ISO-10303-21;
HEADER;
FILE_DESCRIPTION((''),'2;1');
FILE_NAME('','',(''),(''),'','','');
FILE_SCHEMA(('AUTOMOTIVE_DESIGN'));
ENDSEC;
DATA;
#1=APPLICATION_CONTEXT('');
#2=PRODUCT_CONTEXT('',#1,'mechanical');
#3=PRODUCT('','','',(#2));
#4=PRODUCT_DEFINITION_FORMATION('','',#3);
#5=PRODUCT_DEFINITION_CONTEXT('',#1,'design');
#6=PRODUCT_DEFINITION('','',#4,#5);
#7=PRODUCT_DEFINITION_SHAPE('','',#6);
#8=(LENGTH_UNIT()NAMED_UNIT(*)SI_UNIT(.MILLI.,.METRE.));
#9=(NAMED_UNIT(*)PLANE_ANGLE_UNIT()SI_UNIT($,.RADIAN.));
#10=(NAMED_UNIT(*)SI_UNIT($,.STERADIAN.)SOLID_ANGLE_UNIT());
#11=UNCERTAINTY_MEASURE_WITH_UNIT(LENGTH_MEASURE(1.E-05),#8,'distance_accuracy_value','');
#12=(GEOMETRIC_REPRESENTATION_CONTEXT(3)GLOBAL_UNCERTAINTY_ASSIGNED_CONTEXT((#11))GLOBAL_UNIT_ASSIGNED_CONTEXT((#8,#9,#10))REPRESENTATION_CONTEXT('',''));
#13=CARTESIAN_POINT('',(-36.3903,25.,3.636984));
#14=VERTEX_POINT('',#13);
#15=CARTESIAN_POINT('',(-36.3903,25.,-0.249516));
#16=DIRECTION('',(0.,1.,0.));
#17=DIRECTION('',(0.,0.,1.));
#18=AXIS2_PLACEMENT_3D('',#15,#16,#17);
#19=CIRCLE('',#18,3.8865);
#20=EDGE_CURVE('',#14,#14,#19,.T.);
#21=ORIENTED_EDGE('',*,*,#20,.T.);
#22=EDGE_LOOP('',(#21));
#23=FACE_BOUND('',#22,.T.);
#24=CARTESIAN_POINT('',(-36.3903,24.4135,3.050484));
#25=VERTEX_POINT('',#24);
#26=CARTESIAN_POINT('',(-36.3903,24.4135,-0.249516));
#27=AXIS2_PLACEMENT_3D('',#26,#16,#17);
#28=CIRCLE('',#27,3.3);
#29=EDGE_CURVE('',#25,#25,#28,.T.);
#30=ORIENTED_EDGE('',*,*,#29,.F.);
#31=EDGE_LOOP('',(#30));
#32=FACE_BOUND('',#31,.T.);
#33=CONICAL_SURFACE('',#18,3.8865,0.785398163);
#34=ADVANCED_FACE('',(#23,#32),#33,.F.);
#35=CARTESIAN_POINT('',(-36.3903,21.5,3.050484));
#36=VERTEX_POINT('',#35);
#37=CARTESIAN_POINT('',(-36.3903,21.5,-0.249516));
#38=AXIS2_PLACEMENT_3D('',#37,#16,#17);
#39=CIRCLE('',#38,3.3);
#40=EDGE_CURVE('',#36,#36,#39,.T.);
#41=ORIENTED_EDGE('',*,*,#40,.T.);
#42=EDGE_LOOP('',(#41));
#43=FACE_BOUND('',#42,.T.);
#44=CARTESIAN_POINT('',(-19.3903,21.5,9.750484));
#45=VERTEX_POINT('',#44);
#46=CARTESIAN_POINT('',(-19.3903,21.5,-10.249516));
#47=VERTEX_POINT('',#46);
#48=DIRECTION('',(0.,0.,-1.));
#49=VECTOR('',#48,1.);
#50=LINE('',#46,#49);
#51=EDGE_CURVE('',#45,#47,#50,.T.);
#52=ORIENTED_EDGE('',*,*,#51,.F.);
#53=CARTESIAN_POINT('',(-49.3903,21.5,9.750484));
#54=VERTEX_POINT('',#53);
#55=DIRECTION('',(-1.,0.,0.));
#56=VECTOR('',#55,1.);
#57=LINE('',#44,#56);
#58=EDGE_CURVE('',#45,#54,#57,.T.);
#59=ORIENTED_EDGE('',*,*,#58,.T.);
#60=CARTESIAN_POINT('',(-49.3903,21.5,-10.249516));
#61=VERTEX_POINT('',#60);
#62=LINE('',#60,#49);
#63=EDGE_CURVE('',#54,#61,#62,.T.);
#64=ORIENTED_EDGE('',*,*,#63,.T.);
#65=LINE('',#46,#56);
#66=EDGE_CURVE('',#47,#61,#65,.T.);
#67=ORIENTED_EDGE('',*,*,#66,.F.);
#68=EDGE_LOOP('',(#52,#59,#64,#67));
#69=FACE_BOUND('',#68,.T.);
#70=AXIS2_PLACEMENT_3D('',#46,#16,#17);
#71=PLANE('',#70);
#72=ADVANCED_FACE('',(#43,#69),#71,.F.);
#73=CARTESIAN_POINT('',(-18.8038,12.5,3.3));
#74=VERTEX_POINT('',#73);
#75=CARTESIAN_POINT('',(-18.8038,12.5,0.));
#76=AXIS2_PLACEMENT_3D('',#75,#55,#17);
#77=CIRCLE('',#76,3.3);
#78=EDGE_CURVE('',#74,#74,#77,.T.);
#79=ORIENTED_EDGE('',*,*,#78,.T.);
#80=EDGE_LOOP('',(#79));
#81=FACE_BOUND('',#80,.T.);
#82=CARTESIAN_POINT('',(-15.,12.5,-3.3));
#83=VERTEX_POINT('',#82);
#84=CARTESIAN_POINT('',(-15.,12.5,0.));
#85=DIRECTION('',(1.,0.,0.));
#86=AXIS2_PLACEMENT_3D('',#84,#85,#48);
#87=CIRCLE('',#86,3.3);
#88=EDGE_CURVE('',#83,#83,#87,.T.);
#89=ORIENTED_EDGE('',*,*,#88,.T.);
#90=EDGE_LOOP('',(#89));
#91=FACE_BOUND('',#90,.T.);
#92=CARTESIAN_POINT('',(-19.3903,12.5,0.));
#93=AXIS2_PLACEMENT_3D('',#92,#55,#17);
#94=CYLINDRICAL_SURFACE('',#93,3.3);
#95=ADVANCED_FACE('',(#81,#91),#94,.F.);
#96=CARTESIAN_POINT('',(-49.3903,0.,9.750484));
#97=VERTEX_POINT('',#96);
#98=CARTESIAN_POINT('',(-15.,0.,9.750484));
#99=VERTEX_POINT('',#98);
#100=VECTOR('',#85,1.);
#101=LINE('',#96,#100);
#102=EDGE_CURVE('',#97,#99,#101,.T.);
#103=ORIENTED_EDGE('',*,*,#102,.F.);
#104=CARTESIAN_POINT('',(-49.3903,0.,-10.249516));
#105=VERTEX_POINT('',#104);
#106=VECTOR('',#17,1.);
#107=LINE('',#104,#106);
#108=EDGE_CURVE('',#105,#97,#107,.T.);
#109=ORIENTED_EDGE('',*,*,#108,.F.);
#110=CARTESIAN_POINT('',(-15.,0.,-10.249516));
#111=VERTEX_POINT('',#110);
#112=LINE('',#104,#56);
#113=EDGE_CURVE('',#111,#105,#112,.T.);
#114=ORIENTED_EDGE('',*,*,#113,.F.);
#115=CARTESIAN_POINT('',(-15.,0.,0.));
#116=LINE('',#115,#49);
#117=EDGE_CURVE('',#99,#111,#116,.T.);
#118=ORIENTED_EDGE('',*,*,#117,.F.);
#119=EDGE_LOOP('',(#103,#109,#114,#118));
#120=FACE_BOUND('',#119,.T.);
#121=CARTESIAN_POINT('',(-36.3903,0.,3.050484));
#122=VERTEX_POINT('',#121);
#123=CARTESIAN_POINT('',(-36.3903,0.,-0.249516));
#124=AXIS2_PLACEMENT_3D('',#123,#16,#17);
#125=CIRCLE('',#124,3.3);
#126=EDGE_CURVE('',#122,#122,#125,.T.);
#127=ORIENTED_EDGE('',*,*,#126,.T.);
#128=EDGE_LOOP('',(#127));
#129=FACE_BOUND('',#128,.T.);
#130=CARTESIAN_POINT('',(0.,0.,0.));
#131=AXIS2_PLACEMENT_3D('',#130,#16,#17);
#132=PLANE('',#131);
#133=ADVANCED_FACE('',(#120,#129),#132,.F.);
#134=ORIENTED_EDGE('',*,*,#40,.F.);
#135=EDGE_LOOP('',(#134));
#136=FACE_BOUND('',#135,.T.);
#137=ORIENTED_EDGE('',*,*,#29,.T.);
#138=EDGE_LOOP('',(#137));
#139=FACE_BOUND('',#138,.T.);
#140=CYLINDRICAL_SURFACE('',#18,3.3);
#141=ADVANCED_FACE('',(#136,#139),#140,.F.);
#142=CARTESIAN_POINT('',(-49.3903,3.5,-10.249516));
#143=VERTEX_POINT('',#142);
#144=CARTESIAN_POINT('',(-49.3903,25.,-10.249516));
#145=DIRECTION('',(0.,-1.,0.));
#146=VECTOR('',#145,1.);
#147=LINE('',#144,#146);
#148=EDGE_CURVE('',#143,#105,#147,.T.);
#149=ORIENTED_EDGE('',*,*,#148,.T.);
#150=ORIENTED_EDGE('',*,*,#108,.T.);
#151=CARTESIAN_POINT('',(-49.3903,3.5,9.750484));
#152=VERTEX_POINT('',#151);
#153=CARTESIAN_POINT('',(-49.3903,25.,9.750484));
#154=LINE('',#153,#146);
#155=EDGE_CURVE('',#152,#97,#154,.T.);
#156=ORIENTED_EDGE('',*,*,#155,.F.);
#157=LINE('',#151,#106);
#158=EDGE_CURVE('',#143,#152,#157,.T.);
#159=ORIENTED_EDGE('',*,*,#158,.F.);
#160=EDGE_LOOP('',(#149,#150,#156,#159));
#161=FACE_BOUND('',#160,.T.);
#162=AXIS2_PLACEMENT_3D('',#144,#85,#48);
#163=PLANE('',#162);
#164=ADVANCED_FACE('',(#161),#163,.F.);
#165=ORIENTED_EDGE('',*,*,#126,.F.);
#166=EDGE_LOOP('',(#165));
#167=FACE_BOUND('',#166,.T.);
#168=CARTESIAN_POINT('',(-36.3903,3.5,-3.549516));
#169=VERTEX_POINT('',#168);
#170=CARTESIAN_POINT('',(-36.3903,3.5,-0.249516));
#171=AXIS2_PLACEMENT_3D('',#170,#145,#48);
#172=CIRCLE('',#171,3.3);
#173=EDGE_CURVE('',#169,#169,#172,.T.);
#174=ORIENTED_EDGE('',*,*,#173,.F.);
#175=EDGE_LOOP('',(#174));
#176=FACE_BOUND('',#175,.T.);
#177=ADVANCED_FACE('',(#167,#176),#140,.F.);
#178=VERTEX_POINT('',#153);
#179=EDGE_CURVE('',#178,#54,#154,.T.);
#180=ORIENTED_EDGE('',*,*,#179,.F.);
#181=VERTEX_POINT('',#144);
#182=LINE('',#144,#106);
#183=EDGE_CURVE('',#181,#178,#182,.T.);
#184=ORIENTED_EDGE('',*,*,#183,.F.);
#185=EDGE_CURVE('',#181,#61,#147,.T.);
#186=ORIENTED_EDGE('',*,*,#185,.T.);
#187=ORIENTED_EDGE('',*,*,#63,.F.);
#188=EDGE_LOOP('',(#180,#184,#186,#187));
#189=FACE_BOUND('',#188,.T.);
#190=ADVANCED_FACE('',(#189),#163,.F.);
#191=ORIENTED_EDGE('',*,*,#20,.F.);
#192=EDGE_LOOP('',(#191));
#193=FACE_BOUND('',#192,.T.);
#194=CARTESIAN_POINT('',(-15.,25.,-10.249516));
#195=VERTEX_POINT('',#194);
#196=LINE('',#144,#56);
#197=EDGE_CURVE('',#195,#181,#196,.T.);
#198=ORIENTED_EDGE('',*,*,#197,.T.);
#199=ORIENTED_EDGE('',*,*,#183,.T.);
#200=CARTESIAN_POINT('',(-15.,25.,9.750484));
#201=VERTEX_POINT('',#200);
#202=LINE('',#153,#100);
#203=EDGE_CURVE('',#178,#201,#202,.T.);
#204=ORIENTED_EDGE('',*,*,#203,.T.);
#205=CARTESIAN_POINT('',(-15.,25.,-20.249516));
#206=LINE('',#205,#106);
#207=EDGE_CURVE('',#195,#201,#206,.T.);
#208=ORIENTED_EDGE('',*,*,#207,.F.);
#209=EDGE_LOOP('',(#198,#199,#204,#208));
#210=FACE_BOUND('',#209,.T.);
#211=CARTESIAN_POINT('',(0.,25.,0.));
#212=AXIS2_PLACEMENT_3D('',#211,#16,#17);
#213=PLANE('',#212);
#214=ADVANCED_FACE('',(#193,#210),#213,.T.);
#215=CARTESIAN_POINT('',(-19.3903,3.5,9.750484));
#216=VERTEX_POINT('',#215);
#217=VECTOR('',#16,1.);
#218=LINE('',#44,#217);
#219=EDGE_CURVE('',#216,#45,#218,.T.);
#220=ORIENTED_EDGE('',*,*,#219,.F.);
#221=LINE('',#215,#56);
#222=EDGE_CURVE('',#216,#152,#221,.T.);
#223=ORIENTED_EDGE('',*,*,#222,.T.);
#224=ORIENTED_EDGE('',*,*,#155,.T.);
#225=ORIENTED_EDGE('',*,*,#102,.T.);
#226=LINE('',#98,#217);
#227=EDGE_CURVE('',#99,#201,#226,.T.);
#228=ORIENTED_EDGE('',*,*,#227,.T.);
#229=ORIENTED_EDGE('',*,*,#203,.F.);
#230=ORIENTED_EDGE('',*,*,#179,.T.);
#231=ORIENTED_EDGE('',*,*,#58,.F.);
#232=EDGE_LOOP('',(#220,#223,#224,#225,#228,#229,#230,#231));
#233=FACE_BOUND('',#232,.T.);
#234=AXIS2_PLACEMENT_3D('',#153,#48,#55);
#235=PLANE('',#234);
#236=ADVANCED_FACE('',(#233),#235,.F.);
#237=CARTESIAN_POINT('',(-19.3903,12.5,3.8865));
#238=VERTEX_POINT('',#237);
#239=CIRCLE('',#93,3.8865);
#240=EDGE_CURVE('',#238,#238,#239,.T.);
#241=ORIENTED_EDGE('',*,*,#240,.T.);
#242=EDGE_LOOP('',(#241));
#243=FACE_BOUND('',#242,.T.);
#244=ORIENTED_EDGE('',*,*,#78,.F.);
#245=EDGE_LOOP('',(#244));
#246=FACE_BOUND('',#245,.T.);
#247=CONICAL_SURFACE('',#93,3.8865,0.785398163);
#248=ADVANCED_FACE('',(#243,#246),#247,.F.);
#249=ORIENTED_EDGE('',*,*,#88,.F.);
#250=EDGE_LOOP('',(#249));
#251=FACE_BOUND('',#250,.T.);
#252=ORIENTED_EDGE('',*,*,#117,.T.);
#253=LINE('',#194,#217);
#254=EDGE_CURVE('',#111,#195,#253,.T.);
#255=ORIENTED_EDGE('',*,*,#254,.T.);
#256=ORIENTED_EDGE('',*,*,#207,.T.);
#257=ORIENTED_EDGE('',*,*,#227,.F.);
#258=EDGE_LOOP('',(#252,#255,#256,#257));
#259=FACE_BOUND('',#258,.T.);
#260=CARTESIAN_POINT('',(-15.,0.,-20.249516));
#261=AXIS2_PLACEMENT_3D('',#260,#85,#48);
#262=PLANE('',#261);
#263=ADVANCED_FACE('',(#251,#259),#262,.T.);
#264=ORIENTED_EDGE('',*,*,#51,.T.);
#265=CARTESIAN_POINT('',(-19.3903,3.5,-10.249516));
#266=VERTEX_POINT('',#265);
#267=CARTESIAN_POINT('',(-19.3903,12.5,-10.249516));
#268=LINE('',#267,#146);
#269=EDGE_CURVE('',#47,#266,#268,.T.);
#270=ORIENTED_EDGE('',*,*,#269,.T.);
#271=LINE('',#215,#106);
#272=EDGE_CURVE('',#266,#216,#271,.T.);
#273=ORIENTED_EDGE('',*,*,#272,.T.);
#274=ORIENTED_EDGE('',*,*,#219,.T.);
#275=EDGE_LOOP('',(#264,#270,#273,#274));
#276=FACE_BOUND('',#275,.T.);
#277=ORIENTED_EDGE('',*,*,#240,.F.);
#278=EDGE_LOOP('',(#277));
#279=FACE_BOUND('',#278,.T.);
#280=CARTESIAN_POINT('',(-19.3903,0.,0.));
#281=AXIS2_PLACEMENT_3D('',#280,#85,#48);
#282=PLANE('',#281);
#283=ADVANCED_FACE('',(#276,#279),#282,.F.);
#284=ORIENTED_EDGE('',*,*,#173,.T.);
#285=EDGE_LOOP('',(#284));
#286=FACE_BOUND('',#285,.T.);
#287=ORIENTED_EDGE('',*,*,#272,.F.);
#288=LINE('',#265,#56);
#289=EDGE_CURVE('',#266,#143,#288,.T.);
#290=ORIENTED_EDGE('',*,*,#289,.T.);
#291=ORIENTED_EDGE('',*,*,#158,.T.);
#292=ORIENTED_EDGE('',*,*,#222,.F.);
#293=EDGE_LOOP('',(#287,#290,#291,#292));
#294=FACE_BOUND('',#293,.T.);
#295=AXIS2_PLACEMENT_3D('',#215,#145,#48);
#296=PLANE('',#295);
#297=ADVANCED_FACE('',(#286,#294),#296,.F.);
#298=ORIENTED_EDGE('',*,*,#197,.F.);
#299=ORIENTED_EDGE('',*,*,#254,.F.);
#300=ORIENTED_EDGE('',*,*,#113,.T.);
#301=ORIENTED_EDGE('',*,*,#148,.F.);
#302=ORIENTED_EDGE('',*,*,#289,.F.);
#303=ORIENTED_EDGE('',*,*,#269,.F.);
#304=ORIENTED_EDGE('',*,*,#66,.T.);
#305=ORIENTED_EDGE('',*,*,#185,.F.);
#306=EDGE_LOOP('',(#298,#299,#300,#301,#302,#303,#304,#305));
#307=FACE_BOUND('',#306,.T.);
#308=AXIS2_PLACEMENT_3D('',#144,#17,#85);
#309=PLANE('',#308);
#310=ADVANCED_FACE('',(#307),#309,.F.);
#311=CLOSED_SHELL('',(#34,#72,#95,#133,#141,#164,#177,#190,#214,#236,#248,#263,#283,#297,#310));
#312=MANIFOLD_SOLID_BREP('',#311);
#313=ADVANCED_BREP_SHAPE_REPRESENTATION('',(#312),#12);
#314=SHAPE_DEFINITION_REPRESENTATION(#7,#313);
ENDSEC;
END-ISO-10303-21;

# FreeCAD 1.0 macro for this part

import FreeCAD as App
import Part
import Sketcher

doc = App.newDocument("Part")
body = doc.addObject("PartDesign::Body", "Body")

# Sketch on XZ plane
sketch1 = doc.addObject("Sketcher::SketchObject", "Sketch")
body.addObject(sketch1)
sketch1.AttachmentSupport = (doc.XZ_Plane, [""])
sketch1.MapMode = "FlatFace"
sketch1.addGeometry([
    Part.LineSegment(App.Vector(-49, -10, 0), App.Vector(-49, 10, 0)),
    Part.LineSegment(App.Vector(-49, 10, 0), App.Vector(71, 10, 0)),
    Part.LineSegment(App.Vector(71, 10, 0), App.Vector(71, -10, 0)),
    Part.LineSegment(App.Vector(71, -10, 0), App.Vector(-49, -10, 0)),
], False)
sketch1.addConstraint([
    Sketcher.Constraint("Coincident", 0, 2, 1, 1),
    Sketcher.Constraint("Coincident", 1, 2, 2, 1),
    Sketcher.Constraint("Coincident", 2, 2, 3, 1),
    Sketcher.Constraint("Coincident", 3, 2, 0, 1),
    Sketcher.Constraint("Vertical", 0),
    Sketcher.Constraint("Horizontal", 1),
    Sketcher.Constraint("Vertical", 2),
    Sketcher.Constraint("Horizontal", 3),
    Sketcher.Constraint("DistanceX", 1, 1, 1, 2, 120.0),
    Sketcher.Constraint("DistanceY", 0, 1, 0, 2, 20.0),
    Sketcher.Constraint("DistanceX", 0, 2, -1, 1, 49.3903),
    Sketcher.Constraint("DistanceY", -1, 1, 0, 2, 9.750484),
])
pad1 = doc.addObject("PartDesign::Pad", "Pad")
body.addObject(pad1)
pad1.Profile = sketch1
pad1.Length = 25
pad1.Reversed = True

# Sketch on YZ plane
sketch2 = doc.addObject("Sketcher::SketchObject", "Sketch001")
body.addObject(sketch2)
sketch2.AttachmentSupport = (doc.YZ_Plane, [""])
sketch2.MapMode = "FlatFace"
sketch2.AttachmentOffset = App.Placement(App.Vector(0, 0, -49.3903), App.Rotation())
sketch2.addGeometry([
    Part.LineSegment(App.Vector(22, -10, 0), App.Vector(4, -10, 0)),
    Part.LineSegment(App.Vector(4, -10, 0), App.Vector(4, 10, 0)),
    Part.LineSegment(App.Vector(4, 10, 0), App.Vector(22, 10, 0)),
    Part.LineSegment(App.Vector(22, 10, 0), App.Vector(22, -10, 0)),
], False)
sketch2.addConstraint([
    Sketcher.Constraint("Coincident", 0, 2, 1, 1),
    Sketcher.Constraint("Coincident", 1, 2, 2, 1),
    Sketcher.Constraint("Coincident", 2, 2, 3, 1),
    Sketcher.Constraint("Coincident", 3, 2, 0, 1),
    Sketcher.Constraint("Horizontal", 0),
    Sketcher.Constraint("Vertical", 1),
    Sketcher.Constraint("Horizontal", 2),
    Sketcher.Constraint("Vertical", 3),
    Sketcher.Constraint("DistanceX", 0, 2, 0, 1, 18.0),
    Sketcher.Constraint("DistanceY", 1, 1, 1, 2, 20.0),
    Sketcher.Constraint("DistanceX", -1, 1, 0, 2, 3.5),
    Sketcher.Constraint("DistanceY", 0, 2, -1, 1, 10.249516),
])
pocket1 = doc.addObject("PartDesign::Pocket", "Pocket")
body.addObject(pocket1)
pocket1.Profile = sketch2
pocket1.Length = 30
pocket1.Reversed = True

# Sketch on XY plane
sketch3 = doc.addObject("Sketcher::SketchObject", "Sketch002")
body.addObject(sketch3)
sketch3.AttachmentSupport = (doc.XY_Plane, [""])
sketch3.MapMode = "FlatFace"
sketch3.AttachmentOffset = App.Placement(App.Vector(0, 0, 9.750484), App.Rotation())
sketch3.addGeometry([
    Part.LineSegment(App.Vector(-15, 25, 0), App.Vector(-15, 0, 0)),
    Part.LineSegment(App.Vector(-15, 0, 0), App.Vector(71, 0, 0)),
    Part.LineSegment(App.Vector(71, 0, 0), App.Vector(71, 25, 0)),
    Part.LineSegment(App.Vector(71, 25, 0), App.Vector(-15, 25, 0)),
], False)
sketch3.addConstraint([
    Sketcher.Constraint("Coincident", 0, 2, 1, 1),
    Sketcher.Constraint("Coincident", 1, 2, 2, 1),
    Sketcher.Constraint("Coincident", 2, 2, 3, 1),
    Sketcher.Constraint("Coincident", 3, 2, 0, 1),
    Sketcher.Constraint("Vertical", 0),
    Sketcher.Constraint("Horizontal", 1),
    Sketcher.Constraint("Vertical", 2),
    Sketcher.Constraint("Horizontal", 3),
    Sketcher.Constraint("PointOnObject", 0, 2, -1),
    Sketcher.Constraint("DistanceY", 0, 2, 0, 1, 25.0),
    Sketcher.Constraint("DistanceX", 0, 2, -1, 1, 15.0),
    Sketcher.Constraint("DistanceX", 1, 1, 1, 2, 85.6097),
])
pocket2 = doc.addObject("PartDesign::Pocket", "Pocket001")
body.addObject(pocket2)
pocket2.Profile = sketch3
pocket2.Length = 30

# Sketch on XZ plane
sketch4 = doc.addObject("Sketcher::SketchObject", "Sketch003")
body.addObject(sketch4)
sketch4.AttachmentSupport = (doc.XZ_Plane, [""])
sketch4.MapMode = "FlatFace"
sketch4.AttachmentOffset = App.Placement(App.Vector(0, 0, -25), App.Rotation())
sketch4.addGeometry(Part.Circle(App.Vector(-36.4, -0.2, 0), App.Vector(0, 0, 1), 3.3), False)
sketch4.addConstraint([
    Sketcher.Constraint("Diameter", 0, 6.6),
    Sketcher.Constraint("DistanceX", 0, 3, -1, 1, 36.3903),
    Sketcher.Constraint("DistanceY", 0, 3, -1, 1, 0.249516),
])
doc.recompute()
hole = doc.addObject("PartDesign::Hole", "Hole")
body.addObject(hole)
hole.Profile = sketch4
hole.ThreadType = "None"
hole.Diameter = 6.6
hole.DepthType = "Dimension"
hole.Depth = 30
hole.DrillPoint = "Angled"
hole.DrillPointAngle = 118
hole.HoleCutType = "Countersink"
hole.HoleCutDiameter = 7.773
hole.HoleCutCountersinkAngle = 90
hole.Reversed = True

# Sketch on YZ plane
sketch5 = doc.addObject("Sketcher::SketchObject", "Sketch004")
body.addObject(sketch5)
sketch5.AttachmentSupport = (doc.YZ_Plane, [""])
sketch5.MapMode = "FlatFace"
sketch5.AttachmentOffset = App.Placement(App.Vector(0, 0, -19.3903), App.Rotation())
sketch5.addGeometry(Part.Circle(App.Vector(12.5, 0, 0), App.Vector(0, 0, 1), 3.3), False)
sketch5.addConstraint([
    Sketcher.Constraint("PointOnObject", 0, 3, -1),
    Sketcher.Constraint("Diameter", 0, 6.6),
    Sketcher.Constraint("DistanceX", -1, 1, 0, 3, 12.5),
])
doc.recompute()
hole2 = doc.addObject("PartDesign::Hole", "Hole001")
body.addObject(hole2)
hole2.Profile = sketch5
hole2.ThreadType = "None"
hole2.Diameter = 6.6
hole2.DepthType = "Dimension"
hole2.Depth = 30
hole2.DrillPoint = "Angled"
hole2.DrillPointAngle = 118
hole2.HoleCutType = "Countersink"
hole2.HoleCutDiameter = 7.773
hole2.HoleCutCountersinkAngle = 90
hole2.Reversed = True

doc.recompute()
